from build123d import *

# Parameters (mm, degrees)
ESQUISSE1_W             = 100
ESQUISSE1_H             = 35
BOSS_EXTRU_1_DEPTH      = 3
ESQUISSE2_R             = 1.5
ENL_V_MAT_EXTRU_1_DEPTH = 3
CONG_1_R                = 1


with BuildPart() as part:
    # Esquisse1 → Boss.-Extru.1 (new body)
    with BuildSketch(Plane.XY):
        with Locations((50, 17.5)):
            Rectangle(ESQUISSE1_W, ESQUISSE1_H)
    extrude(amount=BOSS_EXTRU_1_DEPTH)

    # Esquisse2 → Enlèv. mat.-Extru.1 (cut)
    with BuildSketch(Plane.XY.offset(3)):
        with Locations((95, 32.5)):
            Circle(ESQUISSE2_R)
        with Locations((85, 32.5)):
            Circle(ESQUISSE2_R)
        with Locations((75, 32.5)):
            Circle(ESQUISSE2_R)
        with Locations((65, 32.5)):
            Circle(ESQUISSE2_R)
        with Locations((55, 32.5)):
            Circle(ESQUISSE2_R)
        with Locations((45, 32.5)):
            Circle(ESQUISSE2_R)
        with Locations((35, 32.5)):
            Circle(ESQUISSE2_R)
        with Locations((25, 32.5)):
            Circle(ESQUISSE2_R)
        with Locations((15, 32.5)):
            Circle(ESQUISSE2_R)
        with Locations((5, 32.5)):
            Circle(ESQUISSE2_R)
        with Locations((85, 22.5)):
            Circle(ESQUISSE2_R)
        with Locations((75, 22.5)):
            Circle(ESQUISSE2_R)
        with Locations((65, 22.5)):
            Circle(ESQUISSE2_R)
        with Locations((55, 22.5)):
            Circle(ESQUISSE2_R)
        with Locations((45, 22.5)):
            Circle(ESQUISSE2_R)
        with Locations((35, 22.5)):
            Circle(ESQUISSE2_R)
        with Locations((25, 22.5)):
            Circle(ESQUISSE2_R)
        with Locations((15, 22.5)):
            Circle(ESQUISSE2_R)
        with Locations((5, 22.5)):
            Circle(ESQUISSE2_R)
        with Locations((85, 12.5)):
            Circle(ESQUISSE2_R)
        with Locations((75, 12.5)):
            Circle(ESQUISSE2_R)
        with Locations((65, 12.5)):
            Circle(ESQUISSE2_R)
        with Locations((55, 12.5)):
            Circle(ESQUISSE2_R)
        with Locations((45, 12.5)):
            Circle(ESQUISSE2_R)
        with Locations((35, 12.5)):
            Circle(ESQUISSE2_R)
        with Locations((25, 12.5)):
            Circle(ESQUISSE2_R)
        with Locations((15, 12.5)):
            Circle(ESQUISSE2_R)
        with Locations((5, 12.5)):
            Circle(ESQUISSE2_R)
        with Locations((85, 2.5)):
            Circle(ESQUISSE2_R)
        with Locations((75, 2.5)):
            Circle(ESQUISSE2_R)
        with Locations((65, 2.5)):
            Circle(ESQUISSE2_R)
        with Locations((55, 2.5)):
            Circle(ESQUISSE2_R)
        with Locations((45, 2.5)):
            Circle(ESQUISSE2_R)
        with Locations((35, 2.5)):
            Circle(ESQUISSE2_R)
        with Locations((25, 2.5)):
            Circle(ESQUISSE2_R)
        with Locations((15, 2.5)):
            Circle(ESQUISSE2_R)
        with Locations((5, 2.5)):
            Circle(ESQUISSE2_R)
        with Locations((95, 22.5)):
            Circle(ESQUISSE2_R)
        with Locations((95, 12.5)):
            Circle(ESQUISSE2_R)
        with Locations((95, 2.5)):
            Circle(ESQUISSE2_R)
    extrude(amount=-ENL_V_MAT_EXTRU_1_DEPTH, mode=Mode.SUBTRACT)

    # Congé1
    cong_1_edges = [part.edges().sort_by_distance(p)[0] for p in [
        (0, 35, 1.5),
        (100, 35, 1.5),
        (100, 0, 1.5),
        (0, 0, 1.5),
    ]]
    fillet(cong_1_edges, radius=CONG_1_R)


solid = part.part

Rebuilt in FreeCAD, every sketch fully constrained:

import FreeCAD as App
import Part
import Sketcher

V = App.Vector


def edges_at(feature, points):
    """Names of the edges that pass closest to the given points."""
    edges = feature.Shape.Edges
    near = lambda p: min(range(len(edges)), key=lambda i: edges[i].distToShape(Part.Vertex(*p))[0])
    return sorted({f"Edge{near(p) + 1}" for p in points})

doc = App.newDocument("Part")
body = doc.addObject("PartDesign::Body", "Body")

# Sketch on XY plane
sketch1 = doc.addObject("Sketcher::SketchObject", "Sketch")
body.addObject(sketch1)
sketch1.AttachmentSupport = (doc.XY_Plane, [""])
sketch1.MapMode = "FlatFace"
sketch1.addGeometry([
    Part.LineSegment(V(0, 35, 0), V(0, 0, 0)),
    Part.LineSegment(V(0, 0, 0), V(100, 0, 0)),
    Part.LineSegment(V(100, 0, 0), V(100, 35, 0)),
    Part.LineSegment(V(100, 35, 0), V(0, 35, 0)),
], False)
sketch1.addConstraint([
    Sketcher.Constraint("Coincident", 0, 2, 1, 1),
    Sketcher.Constraint("Coincident", 1, 2, 2, 1),
    Sketcher.Constraint("Coincident", 2, 2, 3, 1),
    Sketcher.Constraint("Coincident", 3, 2, 0, 1),
    Sketcher.Constraint("Vertical", 0),
    Sketcher.Constraint("Horizontal", 1),
    Sketcher.Constraint("Vertical", 2),
    Sketcher.Constraint("Horizontal", 3),
    Sketcher.Constraint("Coincident", 0, 2, -1, 1),
    Sketcher.Constraint("DistanceX", 1, 1, 1, 2, 100.0),
    Sketcher.Constraint("DistanceY", 0, 2, 0, 1, 35.0),
])
pad1 = doc.addObject("PartDesign::Pad", "Pad")
body.addObject(pad1)
pad1.Profile = sketch1
pad1.Length = 3

# Sketch on XY plane
sketch2 = doc.addObject("Sketcher::SketchObject", "Sketch001")
body.addObject(sketch2)
sketch2.AttachmentSupport = (doc.XY_Plane, [""])
sketch2.MapMode = "FlatFace"
sketch2.AttachmentOffset = App.Placement(V(0, 0, 3), App.Rotation())
sketch2.addGeometry([
    Part.Circle(V(95, 32.5, 0), V(0, 0, 1), 1.5),  # 0
    Part.Circle(V(85, 32.5, 0), V(0, 0, 1), 1.5),  # 1
    Part.Circle(V(75, 32.5, 0), V(0, 0, 1), 1.5),  # 2
    Part.Circle(V(65, 32.5, 0), V(0, 0, 1), 1.5),  # 3
    Part.Circle(V(55, 32.5, 0), V(0, 0, 1), 1.5),  # 4
    Part.Circle(V(45, 32.5, 0), V(0, 0, 1), 1.5),  # 5
    Part.Circle(V(35, 32.5, 0), V(0, 0, 1), 1.5),  # 6
    Part.Circle(V(25, 32.5, 0), V(0, 0, 1), 1.5),  # 7
    Part.Circle(V(15, 32.5, 0), V(0, 0, 1), 1.5),  # 8
    Part.Circle(V(5, 32.5, 0), V(0, 0, 1), 1.5),  # 9
    Part.Circle(V(85, 22.5, 0), V(0, 0, 1), 1.5),  # 10
    Part.Circle(V(75, 22.5, 0), V(0, 0, 1), 1.5),  # 11
    Part.Circle(V(65, 22.5, 0), V(0, 0, 1), 1.5),  # 12
    Part.Circle(V(55, 22.5, 0), V(0, 0, 1), 1.5),  # 13
    Part.Circle(V(45, 22.5, 0), V(0, 0, 1), 1.5),  # 14
    Part.Circle(V(35, 22.5, 0), V(0, 0, 1), 1.5),  # 15
    Part.Circle(V(25, 22.5, 0), V(0, 0, 1), 1.5),  # 16
    Part.Circle(V(15, 22.5, 0), V(0, 0, 1), 1.5),  # 17
    Part.Circle(V(5, 22.5, 0), V(0, 0, 1), 1.5),  # 18
    Part.Circle(V(85, 12.5, 0), V(0, 0, 1), 1.5),  # 19
    Part.Circle(V(75, 12.5, 0), V(0, 0, 1), 1.5),  # 20
    Part.Circle(V(65, 12.5, 0), V(0, 0, 1), 1.5),  # 21
    Part.Circle(V(55, 12.5, 0), V(0, 0, 1), 1.5),  # 22
    Part.Circle(V(45, 12.5, 0), V(0, 0, 1), 1.5),  # 23
    Part.Circle(V(35, 12.5, 0), V(0, 0, 1), 1.5),  # 24
    Part.Circle(V(25, 12.5, 0), V(0, 0, 1), 1.5),  # 25
    Part.Circle(V(15, 12.5, 0), V(0, 0, 1), 1.5),  # 26
    Part.Circle(V(5, 12.5, 0), V(0, 0, 1), 1.5),  # 27
    Part.Circle(V(85, 2.5, 0), V(0, 0, 1), 1.5),  # 28
    Part.Circle(V(75, 2.5, 0), V(0, 0, 1), 1.5),  # 29
    Part.Circle(V(65, 2.5, 0), V(0, 0, 1), 1.5),  # 30
    Part.Circle(V(55, 2.5, 0), V(0, 0, 1), 1.5),  # 31
    Part.Circle(V(45, 2.5, 0), V(0, 0, 1), 1.5),  # 32
    Part.Circle(V(35, 2.5, 0), V(0, 0, 1), 1.5),  # 33
    Part.Circle(V(25, 2.5, 0), V(0, 0, 1), 1.5),  # 34
    Part.Circle(V(15, 2.5, 0), V(0, 0, 1), 1.5),  # 35
    Part.Circle(V(5, 2.5, 0), V(0, 0, 1), 1.5),  # 36
    Part.Circle(V(95, 22.5, 0), V(0, 0, 1), 1.5),  # 37
    Part.Circle(V(95, 12.5, 0), V(0, 0, 1), 1.5),  # 38
    Part.Circle(V(95, 2.5, 0), V(0, 0, 1), 1.5),  # 39
], False)
sketch2.addConstraint([
    Sketcher.Constraint("Equal", 0, 1),
    Sketcher.Constraint("Equal", 1, 2),
    Sketcher.Constraint("Equal", 2, 3),
    Sketcher.Constraint("Equal", 3, 4),
    Sketcher.Constraint("Equal", 4, 5),
    Sketcher.Constraint("Equal", 5, 6),
    Sketcher.Constraint("Equal", 6, 7),
    Sketcher.Constraint("Equal", 7, 8),
    Sketcher.Constraint("Equal", 8, 9),
    Sketcher.Constraint("Equal", 9, 10),
    Sketcher.Constraint("Equal", 10, 11),
    Sketcher.Constraint("Equal", 11, 12),
    Sketcher.Constraint("Equal", 12, 13),
    Sketcher.Constraint("Equal", 13, 14),
    Sketcher.Constraint("Equal", 14, 15),
    Sketcher.Constraint("Equal", 15, 16),
    Sketcher.Constraint("Equal", 16, 17),
    Sketcher.Constraint("Equal", 17, 18),
    Sketcher.Constraint("Equal", 18, 19),
    Sketcher.Constraint("Equal", 19, 20),
    Sketcher.Constraint("Equal", 20, 21),
    Sketcher.Constraint("Equal", 21, 22),
    Sketcher.Constraint("Equal", 22, 23),
    Sketcher.Constraint("Equal", 23, 24),
    Sketcher.Constraint("Equal", 24, 25),
    Sketcher.Constraint("Equal", 25, 26),
    Sketcher.Constraint("Equal", 26, 27),
    Sketcher.Constraint("Equal", 27, 28),
    Sketcher.Constraint("Equal", 28, 29),
    Sketcher.Constraint("Equal", 29, 30),
    Sketcher.Constraint("Equal", 30, 31),
    Sketcher.Constraint("Equal", 31, 32),
    Sketcher.Constraint("Equal", 32, 33),
    Sketcher.Constraint("Equal", 33, 34),
    Sketcher.Constraint("Equal", 34, 35),
    Sketcher.Constraint("Equal", 35, 36),
    Sketcher.Constraint("Equal", 36, 37),
    Sketcher.Constraint("Equal", 37, 38),
    Sketcher.Constraint("Equal", 38, 39),
    Sketcher.Constraint("Horizontal", 0, 3, 1, 3),
    Sketcher.Constraint("Horizontal", 1, 3, 2, 3),
    Sketcher.Constraint("Horizontal", 2, 3, 3, 3),
    Sketcher.Constraint("Horizontal", 3, 3, 4, 3),
    Sketcher.Constraint("Horizontal", 4, 3, 5, 3),
    Sketcher.Constraint("Horizontal", 5, 3, 6, 3),
    Sketcher.Constraint("Horizontal", 6, 3, 7, 3),
    Sketcher.Constraint("Horizontal", 7, 3, 8, 3),
    Sketcher.Constraint("Horizontal", 8, 3, 9, 3),
    Sketcher.Constraint("Horizontal", 10, 3, 11, 3),
    Sketcher.Constraint("Horizontal", 11, 3, 12, 3),
    Sketcher.Constraint("Horizontal", 12, 3, 13, 3),
    Sketcher.Constraint("Horizontal", 13, 3, 14, 3),
    Sketcher.Constraint("Horizontal", 14, 3, 15, 3),
    Sketcher.Constraint("Horizontal", 15, 3, 16, 3),
    Sketcher.Constraint("Horizontal", 16, 3, 17, 3),
    Sketcher.Constraint("Horizontal", 17, 3, 18, 3),
    Sketcher.Constraint("Horizontal", 19, 3, 20, 3),
    Sketcher.Constraint("Horizontal", 20, 3, 21, 3),
    Sketcher.Constraint("Horizontal", 21, 3, 22, 3),
    Sketcher.Constraint("Horizontal", 22, 3, 23, 3),
    Sketcher.Constraint("Horizontal", 23, 3, 24, 3),
    Sketcher.Constraint("Horizontal", 24, 3, 25, 3),
    Sketcher.Constraint("Horizontal", 25, 3, 26, 3),
    Sketcher.Constraint("Horizontal", 26, 3, 27, 3),
    Sketcher.Constraint("Horizontal", 28, 3, 29, 3),
    Sketcher.Constraint("Horizontal", 29, 3, 30, 3),
    Sketcher.Constraint("Horizontal", 30, 3, 31, 3),
    Sketcher.Constraint("Horizontal", 31, 3, 32, 3),
    Sketcher.Constraint("Horizontal", 32, 3, 33, 3),
    Sketcher.Constraint("Horizontal", 33, 3, 34, 3),
    Sketcher.Constraint("Horizontal", 34, 3, 35, 3),
    Sketcher.Constraint("Horizontal", 35, 3, 36, 3),
    Sketcher.Constraint("Horizontal", 18, 3, 37, 3),
    Sketcher.Constraint("Horizontal", 27, 3, 38, 3),
    Sketcher.Constraint("Horizontal", 36, 3, 39, 3),
    Sketcher.Constraint("Vertical", 1, 3, 10, 3),
    Sketcher.Constraint("Vertical", 2, 3, 11, 3),
    Sketcher.Constraint("Vertical", 3, 3, 12, 3),
    Sketcher.Constraint("Vertical", 4, 3, 13, 3),
    Sketcher.Constraint("Vertical", 5, 3, 14, 3),
    Sketcher.Constraint("Vertical", 6, 3, 15, 3),
    Sketcher.Constraint("Vertical", 7, 3, 16, 3),
    Sketcher.Constraint("Vertical", 8, 3, 17, 3),
    Sketcher.Constraint("Vertical", 9, 3, 18, 3),
    Sketcher.Constraint("Vertical", 10, 3, 19, 3),
    Sketcher.Constraint("Vertical", 11, 3, 20, 3),
    Sketcher.Constraint("Vertical", 12, 3, 21, 3),
    Sketcher.Constraint("Vertical", 13, 3, 22, 3),
    Sketcher.Constraint("Vertical", 14, 3, 23, 3),
    Sketcher.Constraint("Vertical", 15, 3, 24, 3),
    Sketcher.Constraint("Vertical", 16, 3, 25, 3),
    Sketcher.Constraint("Vertical", 17, 3, 26, 3),
    Sketcher.Constraint("Vertical", 18, 3, 27, 3),
    Sketcher.Constraint("Vertical", 19, 3, 28, 3),
    Sketcher.Constraint("Vertical", 20, 3, 29, 3),
    Sketcher.Constraint("Vertical", 21, 3, 30, 3),
    Sketcher.Constraint("Vertical", 22, 3, 31, 3),
    Sketcher.Constraint("Vertical", 23, 3, 32, 3),
    Sketcher.Constraint("Vertical", 24, 3, 33, 3),
    Sketcher.Constraint("Vertical", 25, 3, 34, 3),
    Sketcher.Constraint("Vertical", 26, 3, 35, 3),
    Sketcher.Constraint("Vertical", 27, 3, 36, 3),
    Sketcher.Constraint("Vertical", 0, 3, 37, 3),
    Sketcher.Constraint("Vertical", 37, 3, 38, 3),
    Sketcher.Constraint("Vertical", 38, 3, 39, 3),
    Sketcher.Constraint("Diameter", 0, 3.0),
    Sketcher.Constraint("DistanceX", -1, 1, 0, 3, 95.0),
    Sketcher.Constraint("DistanceX", -1, 1, 1, 3, 85.0),
    Sketcher.Constraint("DistanceX", -1, 1, 2, 3, 75.0),
    Sketcher.Constraint("DistanceX", -1, 1, 3, 3, 65.0),
    Sketcher.Constraint("DistanceX", -1, 1, 4, 3, 55.0),
    Sketcher.Constraint("DistanceX", -1, 1, 5, 3, 45.0),
    Sketcher.Constraint("DistanceX", -1, 1, 6, 3, 35.0),
    Sketcher.Constraint("DistanceX", -1, 1, 7, 3, 25.0),
    Sketcher.Constraint("DistanceX", -1, 1, 8, 3, 15.0),
    Sketcher.Constraint("DistanceX", -1, 1, 9, 3, 5.0),
    Sketcher.Constraint("DistanceY", 10, 3, 1, 3, 10.0),
    Sketcher.Constraint("DistanceY", 19, 3, 10, 3, 10.0),
    Sketcher.Constraint("DistanceY", 28, 3, 19, 3, 10.0),
    Sketcher.Constraint("DistanceY", -1, 1, 0, 3, 32.5),
])
pocket1 = doc.addObject("PartDesign::Pocket", "Pocket")
body.addObject(pocket1)
pocket1.Profile = sketch2
pocket1.Length = 3
doc.recompute()

fillet = doc.addObject("PartDesign::Fillet", "Fillet")
body.addObject(fillet)
fillet.Base = (pocket1, edges_at(pocket1, [
    (0, 35, 1.5),
    (100, 35, 1.5),
    (100, 0, 1.5),
    (0, 0, 1.5),
]))
fillet.Radius = 1

doc.recompute()
